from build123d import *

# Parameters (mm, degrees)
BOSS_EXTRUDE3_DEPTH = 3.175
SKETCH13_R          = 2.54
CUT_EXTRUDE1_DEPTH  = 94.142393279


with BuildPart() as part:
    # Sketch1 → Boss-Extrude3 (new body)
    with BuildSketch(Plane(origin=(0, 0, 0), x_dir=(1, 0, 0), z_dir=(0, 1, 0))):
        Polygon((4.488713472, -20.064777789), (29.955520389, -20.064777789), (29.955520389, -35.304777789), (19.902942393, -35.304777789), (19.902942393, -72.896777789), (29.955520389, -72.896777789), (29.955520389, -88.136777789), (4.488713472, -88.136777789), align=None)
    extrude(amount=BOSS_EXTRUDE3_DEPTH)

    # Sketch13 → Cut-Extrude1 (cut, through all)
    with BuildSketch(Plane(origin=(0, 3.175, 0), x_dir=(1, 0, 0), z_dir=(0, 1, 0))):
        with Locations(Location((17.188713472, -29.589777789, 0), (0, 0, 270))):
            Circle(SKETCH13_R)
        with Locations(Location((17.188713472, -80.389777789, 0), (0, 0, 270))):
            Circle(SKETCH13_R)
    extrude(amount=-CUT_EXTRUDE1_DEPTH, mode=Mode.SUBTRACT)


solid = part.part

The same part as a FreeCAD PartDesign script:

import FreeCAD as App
import Part
import Sketcher
from FreeCAD import Vector
Q = App.Units.Quantity

doc = App.newDocument("Part")
body = doc.addObject("PartDesign::Body", "Body")

# Sketch on XZ plane
sketch1 = body.newObject("Sketcher::SketchObject", "Sketch")
sketch1.AttachmentSupport = (doc.getObject("XZ_Plane"), [""])
sketch1.MapMode = "FlatFace"
sketch1.addGeometry(Part.LineSegment(Vector(29.95552, 20.064778, 0), Vector(4.488713, 20.064778, 0)), False)
sketch1.addGeometry(Part.LineSegment(Vector(4.488713, 20.064778, 0), Vector(4.488713, 88.136778, 0)), False)
sketch1.addGeometry(Part.LineSegment(Vector(4.488713, 88.136778, 0), Vector(29.95552, 88.136778, 0)), False)
sketch1.addGeometry(Part.LineSegment(Vector(29.95552, 88.136778, 0), Vector(29.95552, 72.896778, 0)), False)
sketch1.addGeometry(Part.LineSegment(Vector(29.95552, 72.896778, 0), Vector(19.902942, 72.896778, 0)), False)
sketch1.addGeometry(Part.LineSegment(Vector(19.902942, 72.896778, 0), Vector(19.902942, 35.304778, 0)), False)
sketch1.addGeometry(Part.LineSegment(Vector(19.902942, 35.304778, 0), Vector(29.95552, 35.304778, 0)), False)
sketch1.addGeometry(Part.LineSegment(Vector(29.95552, 35.304778, 0), Vector(29.95552, 20.064778, 0)), False)
sketch1.addConstraint(Sketcher.Constraint("Coincident", 0, 2, 1, 1))
sketch1.addConstraint(Sketcher.Constraint("Coincident", 1, 2, 2, 1))
sketch1.addConstraint(Sketcher.Constraint("Coincident", 2, 2, 3, 1))
sketch1.addConstraint(Sketcher.Constraint("Coincident", 3, 2, 4, 1))
sketch1.addConstraint(Sketcher.Constraint("Coincident", 4, 2, 5, 1))
sketch1.addConstraint(Sketcher.Constraint("Coincident", 5, 2, 6, 1))
sketch1.addConstraint(Sketcher.Constraint("Coincident", 6, 2, 7, 1))
sketch1.addConstraint(Sketcher.Constraint("Coincident", 7, 2, 0, 1))
sketch1.addConstraint(Sketcher.Constraint("Horizontal", 0))
sketch1.addConstraint(Sketcher.Constraint("Vertical", 1))
sketch1.addConstraint(Sketcher.Constraint("Horizontal", 2))
sketch1.addConstraint(Sketcher.Constraint("Vertical", 3))
sketch1.addConstraint(Sketcher.Constraint("Horizontal", 4))
sketch1.addConstraint(Sketcher.Constraint("Vertical", 5))
sketch1.addConstraint(Sketcher.Constraint("Horizontal", 6))
sketch1.addConstraint(Sketcher.Constraint("Vertical", 7))
sketch1.addConstraint(Sketcher.Constraint("Vertical", 3, 2, 6, 2))
sketch1.addConstraint(Sketcher.Constraint("Equal", 3, 7))
sketch1.addConstraint(Sketcher.Constraint("DistanceY", 3, 2, 3, 1, Q("0.6 in")))
sketch1.addConstraint(Sketcher.Constraint("DistanceY", 1, 1, 1, 2, Q("2.68 in")))
sketch1.addConstraint(Sketcher.Constraint("DistanceX", 0, 2, 0, 1, 25.466807))
sketch1.addConstraint(Sketcher.Constraint("DistanceX", 4, 2, 4, 1, 10.052578))
sketch1.addConstraint(Sketcher.Constraint("DistanceX", -1, 1, 2, 2, 29.95552))
sketch1.addConstraint(Sketcher.Constraint("DistanceY", -1, 1, 0, 2, 20.064778))
pad1 = body.newObject("PartDesign::Pad", "Pad")
pad1.Profile = sketch1
pad1.Length = Q("0.125 in")
pad1.Reversed = True

# Sketch on XZ plane
sketch2 = body.newObject("Sketcher::SketchObject", "Sketch001")
sketch2.AttachmentSupport = (doc.getObject("XZ_Plane"), [""])
sketch2.MapMode = "FlatFace"
sketch2.AttachmentOffset = App.Placement(Vector(0, 0, -0.125 * 25.4), App.Rotation())
sketch2.addGeometry(Part.Circle(Vector(17.188713, 29.589778, 0), Vector(0, 0, 1), 2.54), False)
sketch2.addGeometry(Part.Circle(Vector(17.188713, 80.389778, 0), Vector(0, 0, 1), 2.54), False)
sketch2.addConstraint(Sketcher.Constraint("Equal", 0, 1))
sketch2.addConstraint(Sketcher.Constraint("Vertical", 0, 3, 1, 3))
sketch2.addConstraint(Sketcher.Constraint("Diameter", 0, Q("0.2 in")))
sketch2.addConstraint(Sketcher.Constraint("DistanceY", 0, 3, 1, 3, Q("2 in")))
sketch2.addConstraint(Sketcher.Constraint("DistanceX", -1, 1, 0, 3, 17.188713))
sketch2.addConstraint(Sketcher.Constraint("DistanceY", -1, 1, 0, 3, 29.589778))
pocket1 = body.newObject("PartDesign::Pocket", "Pocket")
pocket1.Profile = sketch2
pocket1.Type = "ThroughAll"
pocket1.Reversed = True

doc.recompute()
